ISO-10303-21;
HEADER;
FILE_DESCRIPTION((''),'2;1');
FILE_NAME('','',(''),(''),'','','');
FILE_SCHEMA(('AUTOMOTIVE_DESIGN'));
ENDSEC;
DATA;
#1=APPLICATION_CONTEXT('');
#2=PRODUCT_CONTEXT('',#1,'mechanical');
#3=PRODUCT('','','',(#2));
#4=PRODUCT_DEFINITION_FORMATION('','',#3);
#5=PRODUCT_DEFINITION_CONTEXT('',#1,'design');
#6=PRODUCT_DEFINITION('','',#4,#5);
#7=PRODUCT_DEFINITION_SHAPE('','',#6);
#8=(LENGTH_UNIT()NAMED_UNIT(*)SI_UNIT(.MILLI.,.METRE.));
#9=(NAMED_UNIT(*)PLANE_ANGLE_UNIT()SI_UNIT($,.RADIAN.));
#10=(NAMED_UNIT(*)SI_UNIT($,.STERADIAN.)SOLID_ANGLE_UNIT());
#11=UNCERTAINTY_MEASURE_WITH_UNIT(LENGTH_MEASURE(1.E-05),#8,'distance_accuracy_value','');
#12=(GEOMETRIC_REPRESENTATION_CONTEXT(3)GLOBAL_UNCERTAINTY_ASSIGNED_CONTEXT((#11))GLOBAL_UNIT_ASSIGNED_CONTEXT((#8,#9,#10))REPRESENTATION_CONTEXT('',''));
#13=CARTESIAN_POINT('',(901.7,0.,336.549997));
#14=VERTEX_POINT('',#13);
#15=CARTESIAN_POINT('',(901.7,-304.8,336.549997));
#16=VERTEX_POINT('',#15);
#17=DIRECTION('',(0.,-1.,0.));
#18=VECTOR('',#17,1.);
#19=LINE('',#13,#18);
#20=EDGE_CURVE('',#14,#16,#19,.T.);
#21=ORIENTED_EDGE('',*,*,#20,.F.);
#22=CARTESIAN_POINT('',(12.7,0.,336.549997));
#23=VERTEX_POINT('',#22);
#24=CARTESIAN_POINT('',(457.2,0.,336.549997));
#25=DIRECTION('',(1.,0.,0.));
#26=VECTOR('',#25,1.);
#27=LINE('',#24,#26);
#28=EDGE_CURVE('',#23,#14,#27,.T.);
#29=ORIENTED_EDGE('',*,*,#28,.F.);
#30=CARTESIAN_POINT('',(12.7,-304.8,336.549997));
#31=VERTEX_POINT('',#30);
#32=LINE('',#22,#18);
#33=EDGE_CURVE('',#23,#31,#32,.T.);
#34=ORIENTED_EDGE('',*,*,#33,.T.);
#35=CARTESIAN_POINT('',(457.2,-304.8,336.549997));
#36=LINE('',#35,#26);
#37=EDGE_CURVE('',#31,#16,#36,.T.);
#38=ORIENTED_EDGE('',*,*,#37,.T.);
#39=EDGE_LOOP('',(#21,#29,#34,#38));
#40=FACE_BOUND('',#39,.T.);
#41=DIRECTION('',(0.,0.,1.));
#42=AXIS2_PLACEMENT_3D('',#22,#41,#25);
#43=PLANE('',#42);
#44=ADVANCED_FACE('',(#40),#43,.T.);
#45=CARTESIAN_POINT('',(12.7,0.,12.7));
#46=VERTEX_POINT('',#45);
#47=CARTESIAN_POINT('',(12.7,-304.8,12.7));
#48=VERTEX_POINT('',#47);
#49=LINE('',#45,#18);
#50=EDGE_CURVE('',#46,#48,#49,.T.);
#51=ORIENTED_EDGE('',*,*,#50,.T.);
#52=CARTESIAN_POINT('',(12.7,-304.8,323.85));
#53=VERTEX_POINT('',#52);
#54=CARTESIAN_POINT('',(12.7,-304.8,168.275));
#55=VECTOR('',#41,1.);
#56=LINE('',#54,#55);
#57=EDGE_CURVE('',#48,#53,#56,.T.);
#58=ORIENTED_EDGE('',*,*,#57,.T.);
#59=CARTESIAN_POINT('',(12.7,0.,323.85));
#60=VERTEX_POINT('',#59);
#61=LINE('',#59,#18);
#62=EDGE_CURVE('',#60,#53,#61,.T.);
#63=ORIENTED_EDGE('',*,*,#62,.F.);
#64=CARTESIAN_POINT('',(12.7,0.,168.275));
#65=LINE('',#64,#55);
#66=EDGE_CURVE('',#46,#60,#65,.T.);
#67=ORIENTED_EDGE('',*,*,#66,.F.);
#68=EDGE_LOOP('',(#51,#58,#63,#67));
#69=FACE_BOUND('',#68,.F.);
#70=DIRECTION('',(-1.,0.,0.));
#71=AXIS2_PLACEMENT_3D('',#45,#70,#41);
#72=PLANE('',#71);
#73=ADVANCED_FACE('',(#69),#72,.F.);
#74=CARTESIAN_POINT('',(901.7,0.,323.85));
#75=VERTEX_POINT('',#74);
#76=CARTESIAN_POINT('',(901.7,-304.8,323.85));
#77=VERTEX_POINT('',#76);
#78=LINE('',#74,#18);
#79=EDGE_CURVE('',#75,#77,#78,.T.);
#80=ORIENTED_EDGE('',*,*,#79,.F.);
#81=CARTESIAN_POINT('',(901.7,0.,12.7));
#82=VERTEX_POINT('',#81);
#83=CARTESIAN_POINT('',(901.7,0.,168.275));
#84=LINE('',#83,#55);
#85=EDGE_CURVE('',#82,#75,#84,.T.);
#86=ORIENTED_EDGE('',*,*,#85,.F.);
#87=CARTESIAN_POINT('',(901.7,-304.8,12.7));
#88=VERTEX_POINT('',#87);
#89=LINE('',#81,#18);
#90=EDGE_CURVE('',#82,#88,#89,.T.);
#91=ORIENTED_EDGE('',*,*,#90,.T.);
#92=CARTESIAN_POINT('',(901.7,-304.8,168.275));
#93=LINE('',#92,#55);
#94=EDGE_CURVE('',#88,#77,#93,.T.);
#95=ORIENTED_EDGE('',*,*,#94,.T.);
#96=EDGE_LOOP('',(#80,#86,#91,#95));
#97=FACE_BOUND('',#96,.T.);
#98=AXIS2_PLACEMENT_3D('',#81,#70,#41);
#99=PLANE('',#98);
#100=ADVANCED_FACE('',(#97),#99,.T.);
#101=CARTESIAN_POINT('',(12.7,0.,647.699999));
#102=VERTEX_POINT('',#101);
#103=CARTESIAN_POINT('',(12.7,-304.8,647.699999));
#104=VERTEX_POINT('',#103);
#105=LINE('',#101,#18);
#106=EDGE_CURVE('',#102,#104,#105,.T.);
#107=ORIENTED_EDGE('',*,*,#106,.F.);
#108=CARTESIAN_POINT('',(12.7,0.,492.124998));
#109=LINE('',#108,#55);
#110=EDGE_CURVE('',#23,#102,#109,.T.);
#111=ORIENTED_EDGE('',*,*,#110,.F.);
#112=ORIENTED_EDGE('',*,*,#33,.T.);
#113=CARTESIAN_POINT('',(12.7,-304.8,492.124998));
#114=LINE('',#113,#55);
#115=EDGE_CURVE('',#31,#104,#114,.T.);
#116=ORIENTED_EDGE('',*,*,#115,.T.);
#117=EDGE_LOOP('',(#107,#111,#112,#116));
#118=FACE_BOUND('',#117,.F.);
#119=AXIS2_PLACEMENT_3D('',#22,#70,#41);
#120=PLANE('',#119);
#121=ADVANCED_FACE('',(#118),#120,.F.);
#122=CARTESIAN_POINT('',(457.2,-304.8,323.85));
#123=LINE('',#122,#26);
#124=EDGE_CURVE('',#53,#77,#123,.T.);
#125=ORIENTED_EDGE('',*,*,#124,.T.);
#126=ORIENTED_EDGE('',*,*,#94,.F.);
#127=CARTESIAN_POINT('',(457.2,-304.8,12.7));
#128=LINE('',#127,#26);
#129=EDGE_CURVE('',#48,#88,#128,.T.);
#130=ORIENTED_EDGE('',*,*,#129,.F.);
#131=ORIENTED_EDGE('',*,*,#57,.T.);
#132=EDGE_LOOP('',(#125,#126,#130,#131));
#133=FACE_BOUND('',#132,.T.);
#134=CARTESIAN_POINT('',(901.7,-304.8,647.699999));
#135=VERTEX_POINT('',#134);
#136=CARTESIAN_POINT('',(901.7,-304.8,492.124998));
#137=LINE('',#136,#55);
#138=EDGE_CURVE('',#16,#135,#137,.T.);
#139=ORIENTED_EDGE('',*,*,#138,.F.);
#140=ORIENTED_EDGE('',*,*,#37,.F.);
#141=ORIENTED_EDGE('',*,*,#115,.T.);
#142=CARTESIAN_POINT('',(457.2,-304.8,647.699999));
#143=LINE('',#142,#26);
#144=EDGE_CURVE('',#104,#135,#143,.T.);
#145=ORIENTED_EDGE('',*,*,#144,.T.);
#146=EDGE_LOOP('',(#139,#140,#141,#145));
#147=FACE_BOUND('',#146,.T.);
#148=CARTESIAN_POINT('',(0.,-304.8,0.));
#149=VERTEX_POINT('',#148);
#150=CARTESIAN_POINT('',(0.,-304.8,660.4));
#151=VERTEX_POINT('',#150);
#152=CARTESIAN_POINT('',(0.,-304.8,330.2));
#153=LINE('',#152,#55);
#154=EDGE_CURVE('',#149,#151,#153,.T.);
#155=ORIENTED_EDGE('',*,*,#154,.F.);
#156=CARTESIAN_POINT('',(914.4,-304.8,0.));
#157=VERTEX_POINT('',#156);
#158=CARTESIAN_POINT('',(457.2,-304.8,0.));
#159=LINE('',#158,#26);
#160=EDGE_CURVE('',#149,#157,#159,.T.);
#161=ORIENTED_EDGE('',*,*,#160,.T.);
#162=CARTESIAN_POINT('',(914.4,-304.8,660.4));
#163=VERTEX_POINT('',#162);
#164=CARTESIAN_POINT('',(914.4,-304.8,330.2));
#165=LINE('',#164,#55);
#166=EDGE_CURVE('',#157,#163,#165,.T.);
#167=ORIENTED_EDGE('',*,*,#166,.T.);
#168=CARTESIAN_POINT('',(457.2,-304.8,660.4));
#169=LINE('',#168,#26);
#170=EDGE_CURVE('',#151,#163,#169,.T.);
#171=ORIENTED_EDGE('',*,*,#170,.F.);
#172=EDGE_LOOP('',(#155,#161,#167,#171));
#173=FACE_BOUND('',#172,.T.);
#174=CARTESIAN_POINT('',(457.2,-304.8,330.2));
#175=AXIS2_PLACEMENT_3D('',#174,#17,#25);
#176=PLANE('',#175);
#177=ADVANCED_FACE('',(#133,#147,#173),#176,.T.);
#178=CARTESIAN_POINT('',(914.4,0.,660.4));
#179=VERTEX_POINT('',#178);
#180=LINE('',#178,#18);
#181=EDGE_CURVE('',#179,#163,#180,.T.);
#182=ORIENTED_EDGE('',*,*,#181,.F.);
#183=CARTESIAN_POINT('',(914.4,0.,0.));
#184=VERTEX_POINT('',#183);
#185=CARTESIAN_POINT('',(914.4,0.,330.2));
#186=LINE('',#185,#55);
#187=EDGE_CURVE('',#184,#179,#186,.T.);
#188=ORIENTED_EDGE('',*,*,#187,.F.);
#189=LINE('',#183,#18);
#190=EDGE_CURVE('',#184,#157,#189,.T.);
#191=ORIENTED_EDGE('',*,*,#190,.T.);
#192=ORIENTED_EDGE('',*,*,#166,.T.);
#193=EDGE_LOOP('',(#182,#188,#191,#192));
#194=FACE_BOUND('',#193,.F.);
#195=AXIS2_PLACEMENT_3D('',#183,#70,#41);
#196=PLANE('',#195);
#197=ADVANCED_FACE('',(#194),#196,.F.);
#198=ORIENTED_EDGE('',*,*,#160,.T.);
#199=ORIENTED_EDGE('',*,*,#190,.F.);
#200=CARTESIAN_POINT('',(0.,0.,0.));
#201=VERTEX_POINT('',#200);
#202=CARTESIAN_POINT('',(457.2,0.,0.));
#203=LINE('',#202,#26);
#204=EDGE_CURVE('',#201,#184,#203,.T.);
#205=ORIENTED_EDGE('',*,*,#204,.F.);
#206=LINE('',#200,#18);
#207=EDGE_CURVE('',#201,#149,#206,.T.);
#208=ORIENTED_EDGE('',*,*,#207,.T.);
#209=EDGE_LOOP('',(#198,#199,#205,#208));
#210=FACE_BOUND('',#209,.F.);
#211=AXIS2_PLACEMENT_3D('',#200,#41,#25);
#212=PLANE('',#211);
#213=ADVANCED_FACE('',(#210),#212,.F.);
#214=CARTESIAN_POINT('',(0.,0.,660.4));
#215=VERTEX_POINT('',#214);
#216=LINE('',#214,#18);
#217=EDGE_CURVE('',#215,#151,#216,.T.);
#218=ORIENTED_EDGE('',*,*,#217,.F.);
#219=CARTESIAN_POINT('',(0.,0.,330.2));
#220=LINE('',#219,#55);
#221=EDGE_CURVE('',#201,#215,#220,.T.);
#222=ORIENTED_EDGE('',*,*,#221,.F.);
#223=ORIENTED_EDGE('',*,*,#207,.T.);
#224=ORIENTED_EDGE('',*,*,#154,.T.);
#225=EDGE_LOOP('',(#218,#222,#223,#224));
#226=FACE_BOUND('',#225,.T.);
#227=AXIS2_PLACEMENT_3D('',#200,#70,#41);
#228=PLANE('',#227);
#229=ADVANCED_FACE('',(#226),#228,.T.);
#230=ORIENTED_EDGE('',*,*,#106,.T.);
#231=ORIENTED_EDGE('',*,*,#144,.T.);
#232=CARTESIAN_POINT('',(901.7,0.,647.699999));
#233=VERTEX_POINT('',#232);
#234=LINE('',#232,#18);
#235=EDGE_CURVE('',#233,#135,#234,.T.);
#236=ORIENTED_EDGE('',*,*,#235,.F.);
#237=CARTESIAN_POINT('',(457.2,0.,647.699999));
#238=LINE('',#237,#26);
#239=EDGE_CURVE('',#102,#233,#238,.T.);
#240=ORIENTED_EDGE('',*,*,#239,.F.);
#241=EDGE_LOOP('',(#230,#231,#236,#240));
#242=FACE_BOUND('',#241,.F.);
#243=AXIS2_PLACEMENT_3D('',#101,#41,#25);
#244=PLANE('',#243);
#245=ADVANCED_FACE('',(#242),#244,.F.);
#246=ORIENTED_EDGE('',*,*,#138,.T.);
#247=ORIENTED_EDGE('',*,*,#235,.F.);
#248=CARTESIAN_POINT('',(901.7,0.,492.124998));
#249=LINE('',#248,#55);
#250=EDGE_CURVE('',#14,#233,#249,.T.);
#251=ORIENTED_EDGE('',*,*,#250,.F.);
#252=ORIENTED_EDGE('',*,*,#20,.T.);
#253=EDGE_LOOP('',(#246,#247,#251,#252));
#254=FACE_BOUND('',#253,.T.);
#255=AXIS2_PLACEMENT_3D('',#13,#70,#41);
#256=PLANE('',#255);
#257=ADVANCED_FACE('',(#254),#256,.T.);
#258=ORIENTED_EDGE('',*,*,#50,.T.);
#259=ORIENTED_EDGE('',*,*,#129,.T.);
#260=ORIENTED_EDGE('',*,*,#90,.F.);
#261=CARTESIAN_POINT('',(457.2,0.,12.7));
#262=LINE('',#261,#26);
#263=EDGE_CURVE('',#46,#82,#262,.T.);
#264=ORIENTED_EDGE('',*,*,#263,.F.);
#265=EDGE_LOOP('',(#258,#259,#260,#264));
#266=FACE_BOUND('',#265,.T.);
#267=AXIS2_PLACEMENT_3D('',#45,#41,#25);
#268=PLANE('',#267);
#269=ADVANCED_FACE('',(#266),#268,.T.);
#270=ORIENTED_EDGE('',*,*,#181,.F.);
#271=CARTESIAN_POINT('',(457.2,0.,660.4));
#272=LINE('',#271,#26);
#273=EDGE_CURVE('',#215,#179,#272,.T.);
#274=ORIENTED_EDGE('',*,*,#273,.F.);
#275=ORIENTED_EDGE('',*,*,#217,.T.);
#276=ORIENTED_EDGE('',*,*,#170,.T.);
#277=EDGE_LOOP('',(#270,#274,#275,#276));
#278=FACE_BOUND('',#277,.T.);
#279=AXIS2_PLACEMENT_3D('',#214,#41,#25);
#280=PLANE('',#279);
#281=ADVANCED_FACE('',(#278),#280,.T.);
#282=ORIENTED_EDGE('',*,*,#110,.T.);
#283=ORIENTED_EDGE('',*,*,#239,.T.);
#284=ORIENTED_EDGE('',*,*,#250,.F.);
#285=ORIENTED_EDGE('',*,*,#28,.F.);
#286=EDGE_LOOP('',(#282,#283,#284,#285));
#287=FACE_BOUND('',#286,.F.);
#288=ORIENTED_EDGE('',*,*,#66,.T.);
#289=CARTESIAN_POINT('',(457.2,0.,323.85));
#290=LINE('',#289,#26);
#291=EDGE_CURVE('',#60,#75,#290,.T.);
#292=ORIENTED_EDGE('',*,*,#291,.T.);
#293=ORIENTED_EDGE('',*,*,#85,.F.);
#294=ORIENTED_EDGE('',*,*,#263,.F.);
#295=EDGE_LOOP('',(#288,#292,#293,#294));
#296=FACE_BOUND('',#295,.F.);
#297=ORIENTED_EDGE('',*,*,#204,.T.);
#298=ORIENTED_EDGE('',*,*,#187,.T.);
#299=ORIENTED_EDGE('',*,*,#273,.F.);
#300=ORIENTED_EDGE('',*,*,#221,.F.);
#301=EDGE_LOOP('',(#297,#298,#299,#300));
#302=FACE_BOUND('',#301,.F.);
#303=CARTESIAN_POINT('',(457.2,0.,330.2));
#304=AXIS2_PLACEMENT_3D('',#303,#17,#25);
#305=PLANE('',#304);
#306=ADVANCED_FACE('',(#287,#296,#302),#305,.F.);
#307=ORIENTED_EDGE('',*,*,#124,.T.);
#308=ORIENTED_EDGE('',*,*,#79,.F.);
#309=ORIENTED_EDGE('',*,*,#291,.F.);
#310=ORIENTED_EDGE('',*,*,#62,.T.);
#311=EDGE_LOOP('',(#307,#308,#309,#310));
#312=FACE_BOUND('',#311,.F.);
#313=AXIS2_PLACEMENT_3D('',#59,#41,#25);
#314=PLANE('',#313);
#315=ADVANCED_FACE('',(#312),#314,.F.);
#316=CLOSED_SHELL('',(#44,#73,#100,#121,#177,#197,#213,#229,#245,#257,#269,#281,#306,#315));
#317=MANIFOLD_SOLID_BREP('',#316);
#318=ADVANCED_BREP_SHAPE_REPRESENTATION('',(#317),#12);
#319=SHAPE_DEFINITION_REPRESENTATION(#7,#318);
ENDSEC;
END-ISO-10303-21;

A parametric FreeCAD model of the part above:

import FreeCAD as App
import Part
import Sketcher

V = App.Vector
Q = App.Units.Quantity

doc = App.newDocument("Part")
body = doc.addObject("PartDesign::Body", "Body")

# Sketch on XZ plane
sketch1 = doc.addObject("Sketcher::SketchObject", "Sketch")
body.addObject(sketch1)
sketch1.AttachmentSupport = (doc.XZ_Plane, [""])
sketch1.MapMode = "FlatFace"
sketch1.addGeometry(Part.LineSegment(V(0, 660, 0), V(0, 0, 0)), False)
sketch1.addGeometry(Part.LineSegment(V(0, 0, 0), V(914, 0, 0)), False)
sketch1.addGeometry(Part.LineSegment(V(914, 0, 0), V(914, 660, 0)), False)
sketch1.addGeometry(Part.LineSegment(V(914, 660, 0), V(0, 660, 0)), False)
sketch1.addGeometry(Part.LineSegment(V(902, 13, 0), V(13, 13, 0)), False)
sketch1.addGeometry(Part.LineSegment(V(13, 13, 0), V(13, 324, 0)), False)
sketch1.addGeometry(Part.LineSegment(V(13, 324, 0), V(902, 324, 0)), False)
sketch1.addGeometry(Part.LineSegment(V(902, 324, 0), V(902, 13, 0)), False)
sketch1.addGeometry(Part.LineSegment(V(902, 337, 0), V(13, 337, 0)), False)
sketch1.addGeometry(Part.LineSegment(V(13, 337, 0), V(13, 648, 0)), False)
sketch1.addGeometry(Part.LineSegment(V(13, 648, 0), V(902, 648, 0)), False)
sketch1.addGeometry(Part.LineSegment(V(902, 648, 0), V(902, 337, 0)), False)
sketch1.addConstraint(Sketcher.Constraint("Coincident", 0, 2, 1, 1))
sketch1.addConstraint(Sketcher.Constraint("Coincident", 1, 2, 2, 1))
sketch1.addConstraint(Sketcher.Constraint("Coincident", 2, 2, 3, 1))
sketch1.addConstraint(Sketcher.Constraint("Coincident", 3, 2, 0, 1))
sketch1.addConstraint(Sketcher.Constraint("Coincident", 4, 2, 5, 1))
sketch1.addConstraint(Sketcher.Constraint("Coincident", 5, 2, 6, 1))
sketch1.addConstraint(Sketcher.Constraint("Coincident", 6, 2, 7, 1))
sketch1.addConstraint(Sketcher.Constraint("Coincident", 7, 2, 4, 1))
sketch1.addConstraint(Sketcher.Constraint("Coincident", 8, 2, 9, 1))
sketch1.addConstraint(Sketcher.Constraint("Coincident", 9, 2, 10, 1))
sketch1.addConstraint(Sketcher.Constraint("Coincident", 10, 2, 11, 1))
sketch1.addConstraint(Sketcher.Constraint("Coincident", 11, 2, 8, 1))
sketch1.addConstraint(Sketcher.Constraint("Vertical", 0))
sketch1.addConstraint(Sketcher.Constraint("Horizontal", 1))
sketch1.addConstraint(Sketcher.Constraint("Vertical", 2))
sketch1.addConstraint(Sketcher.Constraint("Horizontal", 3))
sketch1.addConstraint(Sketcher.Constraint("Horizontal", 4))
sketch1.addConstraint(Sketcher.Constraint("Vertical", 5))
sketch1.addConstraint(Sketcher.Constraint("Horizontal", 6))
sketch1.addConstraint(Sketcher.Constraint("Vertical", 7))
sketch1.addConstraint(Sketcher.Constraint("Horizontal", 8))
sketch1.addConstraint(Sketcher.Constraint("Vertical", 9))
sketch1.addConstraint(Sketcher.Constraint("Horizontal", 10))
sketch1.addConstraint(Sketcher.Constraint("Vertical", 11))
sketch1.addConstraint(Sketcher.Constraint("Coincident", 0, 2, -1, 1))
sketch1.addConstraint(Sketcher.Constraint("Vertical", 5, 2, 8, 2))
sketch1.addConstraint(Sketcher.Constraint("Vertical", 7, 2, 10, 2))
sketch1.addConstraint(Sketcher.Constraint("DistanceX", 1, 1, 1, 2, Q("36 in")))
sketch1.addConstraint(Sketcher.Constraint("DistanceX", 4, 2, 4, 1, Q("35 in")))
sketch1.addConstraint(Sketcher.Constraint("DistanceY", 0, 2, 0, 1, Q("26 in")))
sketch1.addConstraint(Sketcher.Constraint("DistanceY", 4, 2, 9, 2, Q("25 in")))
sketch1.addConstraint(Sketcher.Constraint("DistanceY", 5, 1, 5, 2, Q("12.25 in")))
sketch1.addConstraint(Sketcher.Constraint("DistanceY", 9, 1, 9, 2, Q("12.2500001 in")))
sketch1.addConstraint(Sketcher.Constraint("DistanceX", -1, 1, 4, 2, Q("0.5 in")))
sketch1.addConstraint(Sketcher.Constraint("DistanceY", -1, 1, 4, 2, Q("0.5 in")))
pad1 = doc.addObject("PartDesign::Pad", "Pad")
body.addObject(pad1)
pad1.Profile = sketch1
pad1.Length = Q("12 in")

doc.recompute()
